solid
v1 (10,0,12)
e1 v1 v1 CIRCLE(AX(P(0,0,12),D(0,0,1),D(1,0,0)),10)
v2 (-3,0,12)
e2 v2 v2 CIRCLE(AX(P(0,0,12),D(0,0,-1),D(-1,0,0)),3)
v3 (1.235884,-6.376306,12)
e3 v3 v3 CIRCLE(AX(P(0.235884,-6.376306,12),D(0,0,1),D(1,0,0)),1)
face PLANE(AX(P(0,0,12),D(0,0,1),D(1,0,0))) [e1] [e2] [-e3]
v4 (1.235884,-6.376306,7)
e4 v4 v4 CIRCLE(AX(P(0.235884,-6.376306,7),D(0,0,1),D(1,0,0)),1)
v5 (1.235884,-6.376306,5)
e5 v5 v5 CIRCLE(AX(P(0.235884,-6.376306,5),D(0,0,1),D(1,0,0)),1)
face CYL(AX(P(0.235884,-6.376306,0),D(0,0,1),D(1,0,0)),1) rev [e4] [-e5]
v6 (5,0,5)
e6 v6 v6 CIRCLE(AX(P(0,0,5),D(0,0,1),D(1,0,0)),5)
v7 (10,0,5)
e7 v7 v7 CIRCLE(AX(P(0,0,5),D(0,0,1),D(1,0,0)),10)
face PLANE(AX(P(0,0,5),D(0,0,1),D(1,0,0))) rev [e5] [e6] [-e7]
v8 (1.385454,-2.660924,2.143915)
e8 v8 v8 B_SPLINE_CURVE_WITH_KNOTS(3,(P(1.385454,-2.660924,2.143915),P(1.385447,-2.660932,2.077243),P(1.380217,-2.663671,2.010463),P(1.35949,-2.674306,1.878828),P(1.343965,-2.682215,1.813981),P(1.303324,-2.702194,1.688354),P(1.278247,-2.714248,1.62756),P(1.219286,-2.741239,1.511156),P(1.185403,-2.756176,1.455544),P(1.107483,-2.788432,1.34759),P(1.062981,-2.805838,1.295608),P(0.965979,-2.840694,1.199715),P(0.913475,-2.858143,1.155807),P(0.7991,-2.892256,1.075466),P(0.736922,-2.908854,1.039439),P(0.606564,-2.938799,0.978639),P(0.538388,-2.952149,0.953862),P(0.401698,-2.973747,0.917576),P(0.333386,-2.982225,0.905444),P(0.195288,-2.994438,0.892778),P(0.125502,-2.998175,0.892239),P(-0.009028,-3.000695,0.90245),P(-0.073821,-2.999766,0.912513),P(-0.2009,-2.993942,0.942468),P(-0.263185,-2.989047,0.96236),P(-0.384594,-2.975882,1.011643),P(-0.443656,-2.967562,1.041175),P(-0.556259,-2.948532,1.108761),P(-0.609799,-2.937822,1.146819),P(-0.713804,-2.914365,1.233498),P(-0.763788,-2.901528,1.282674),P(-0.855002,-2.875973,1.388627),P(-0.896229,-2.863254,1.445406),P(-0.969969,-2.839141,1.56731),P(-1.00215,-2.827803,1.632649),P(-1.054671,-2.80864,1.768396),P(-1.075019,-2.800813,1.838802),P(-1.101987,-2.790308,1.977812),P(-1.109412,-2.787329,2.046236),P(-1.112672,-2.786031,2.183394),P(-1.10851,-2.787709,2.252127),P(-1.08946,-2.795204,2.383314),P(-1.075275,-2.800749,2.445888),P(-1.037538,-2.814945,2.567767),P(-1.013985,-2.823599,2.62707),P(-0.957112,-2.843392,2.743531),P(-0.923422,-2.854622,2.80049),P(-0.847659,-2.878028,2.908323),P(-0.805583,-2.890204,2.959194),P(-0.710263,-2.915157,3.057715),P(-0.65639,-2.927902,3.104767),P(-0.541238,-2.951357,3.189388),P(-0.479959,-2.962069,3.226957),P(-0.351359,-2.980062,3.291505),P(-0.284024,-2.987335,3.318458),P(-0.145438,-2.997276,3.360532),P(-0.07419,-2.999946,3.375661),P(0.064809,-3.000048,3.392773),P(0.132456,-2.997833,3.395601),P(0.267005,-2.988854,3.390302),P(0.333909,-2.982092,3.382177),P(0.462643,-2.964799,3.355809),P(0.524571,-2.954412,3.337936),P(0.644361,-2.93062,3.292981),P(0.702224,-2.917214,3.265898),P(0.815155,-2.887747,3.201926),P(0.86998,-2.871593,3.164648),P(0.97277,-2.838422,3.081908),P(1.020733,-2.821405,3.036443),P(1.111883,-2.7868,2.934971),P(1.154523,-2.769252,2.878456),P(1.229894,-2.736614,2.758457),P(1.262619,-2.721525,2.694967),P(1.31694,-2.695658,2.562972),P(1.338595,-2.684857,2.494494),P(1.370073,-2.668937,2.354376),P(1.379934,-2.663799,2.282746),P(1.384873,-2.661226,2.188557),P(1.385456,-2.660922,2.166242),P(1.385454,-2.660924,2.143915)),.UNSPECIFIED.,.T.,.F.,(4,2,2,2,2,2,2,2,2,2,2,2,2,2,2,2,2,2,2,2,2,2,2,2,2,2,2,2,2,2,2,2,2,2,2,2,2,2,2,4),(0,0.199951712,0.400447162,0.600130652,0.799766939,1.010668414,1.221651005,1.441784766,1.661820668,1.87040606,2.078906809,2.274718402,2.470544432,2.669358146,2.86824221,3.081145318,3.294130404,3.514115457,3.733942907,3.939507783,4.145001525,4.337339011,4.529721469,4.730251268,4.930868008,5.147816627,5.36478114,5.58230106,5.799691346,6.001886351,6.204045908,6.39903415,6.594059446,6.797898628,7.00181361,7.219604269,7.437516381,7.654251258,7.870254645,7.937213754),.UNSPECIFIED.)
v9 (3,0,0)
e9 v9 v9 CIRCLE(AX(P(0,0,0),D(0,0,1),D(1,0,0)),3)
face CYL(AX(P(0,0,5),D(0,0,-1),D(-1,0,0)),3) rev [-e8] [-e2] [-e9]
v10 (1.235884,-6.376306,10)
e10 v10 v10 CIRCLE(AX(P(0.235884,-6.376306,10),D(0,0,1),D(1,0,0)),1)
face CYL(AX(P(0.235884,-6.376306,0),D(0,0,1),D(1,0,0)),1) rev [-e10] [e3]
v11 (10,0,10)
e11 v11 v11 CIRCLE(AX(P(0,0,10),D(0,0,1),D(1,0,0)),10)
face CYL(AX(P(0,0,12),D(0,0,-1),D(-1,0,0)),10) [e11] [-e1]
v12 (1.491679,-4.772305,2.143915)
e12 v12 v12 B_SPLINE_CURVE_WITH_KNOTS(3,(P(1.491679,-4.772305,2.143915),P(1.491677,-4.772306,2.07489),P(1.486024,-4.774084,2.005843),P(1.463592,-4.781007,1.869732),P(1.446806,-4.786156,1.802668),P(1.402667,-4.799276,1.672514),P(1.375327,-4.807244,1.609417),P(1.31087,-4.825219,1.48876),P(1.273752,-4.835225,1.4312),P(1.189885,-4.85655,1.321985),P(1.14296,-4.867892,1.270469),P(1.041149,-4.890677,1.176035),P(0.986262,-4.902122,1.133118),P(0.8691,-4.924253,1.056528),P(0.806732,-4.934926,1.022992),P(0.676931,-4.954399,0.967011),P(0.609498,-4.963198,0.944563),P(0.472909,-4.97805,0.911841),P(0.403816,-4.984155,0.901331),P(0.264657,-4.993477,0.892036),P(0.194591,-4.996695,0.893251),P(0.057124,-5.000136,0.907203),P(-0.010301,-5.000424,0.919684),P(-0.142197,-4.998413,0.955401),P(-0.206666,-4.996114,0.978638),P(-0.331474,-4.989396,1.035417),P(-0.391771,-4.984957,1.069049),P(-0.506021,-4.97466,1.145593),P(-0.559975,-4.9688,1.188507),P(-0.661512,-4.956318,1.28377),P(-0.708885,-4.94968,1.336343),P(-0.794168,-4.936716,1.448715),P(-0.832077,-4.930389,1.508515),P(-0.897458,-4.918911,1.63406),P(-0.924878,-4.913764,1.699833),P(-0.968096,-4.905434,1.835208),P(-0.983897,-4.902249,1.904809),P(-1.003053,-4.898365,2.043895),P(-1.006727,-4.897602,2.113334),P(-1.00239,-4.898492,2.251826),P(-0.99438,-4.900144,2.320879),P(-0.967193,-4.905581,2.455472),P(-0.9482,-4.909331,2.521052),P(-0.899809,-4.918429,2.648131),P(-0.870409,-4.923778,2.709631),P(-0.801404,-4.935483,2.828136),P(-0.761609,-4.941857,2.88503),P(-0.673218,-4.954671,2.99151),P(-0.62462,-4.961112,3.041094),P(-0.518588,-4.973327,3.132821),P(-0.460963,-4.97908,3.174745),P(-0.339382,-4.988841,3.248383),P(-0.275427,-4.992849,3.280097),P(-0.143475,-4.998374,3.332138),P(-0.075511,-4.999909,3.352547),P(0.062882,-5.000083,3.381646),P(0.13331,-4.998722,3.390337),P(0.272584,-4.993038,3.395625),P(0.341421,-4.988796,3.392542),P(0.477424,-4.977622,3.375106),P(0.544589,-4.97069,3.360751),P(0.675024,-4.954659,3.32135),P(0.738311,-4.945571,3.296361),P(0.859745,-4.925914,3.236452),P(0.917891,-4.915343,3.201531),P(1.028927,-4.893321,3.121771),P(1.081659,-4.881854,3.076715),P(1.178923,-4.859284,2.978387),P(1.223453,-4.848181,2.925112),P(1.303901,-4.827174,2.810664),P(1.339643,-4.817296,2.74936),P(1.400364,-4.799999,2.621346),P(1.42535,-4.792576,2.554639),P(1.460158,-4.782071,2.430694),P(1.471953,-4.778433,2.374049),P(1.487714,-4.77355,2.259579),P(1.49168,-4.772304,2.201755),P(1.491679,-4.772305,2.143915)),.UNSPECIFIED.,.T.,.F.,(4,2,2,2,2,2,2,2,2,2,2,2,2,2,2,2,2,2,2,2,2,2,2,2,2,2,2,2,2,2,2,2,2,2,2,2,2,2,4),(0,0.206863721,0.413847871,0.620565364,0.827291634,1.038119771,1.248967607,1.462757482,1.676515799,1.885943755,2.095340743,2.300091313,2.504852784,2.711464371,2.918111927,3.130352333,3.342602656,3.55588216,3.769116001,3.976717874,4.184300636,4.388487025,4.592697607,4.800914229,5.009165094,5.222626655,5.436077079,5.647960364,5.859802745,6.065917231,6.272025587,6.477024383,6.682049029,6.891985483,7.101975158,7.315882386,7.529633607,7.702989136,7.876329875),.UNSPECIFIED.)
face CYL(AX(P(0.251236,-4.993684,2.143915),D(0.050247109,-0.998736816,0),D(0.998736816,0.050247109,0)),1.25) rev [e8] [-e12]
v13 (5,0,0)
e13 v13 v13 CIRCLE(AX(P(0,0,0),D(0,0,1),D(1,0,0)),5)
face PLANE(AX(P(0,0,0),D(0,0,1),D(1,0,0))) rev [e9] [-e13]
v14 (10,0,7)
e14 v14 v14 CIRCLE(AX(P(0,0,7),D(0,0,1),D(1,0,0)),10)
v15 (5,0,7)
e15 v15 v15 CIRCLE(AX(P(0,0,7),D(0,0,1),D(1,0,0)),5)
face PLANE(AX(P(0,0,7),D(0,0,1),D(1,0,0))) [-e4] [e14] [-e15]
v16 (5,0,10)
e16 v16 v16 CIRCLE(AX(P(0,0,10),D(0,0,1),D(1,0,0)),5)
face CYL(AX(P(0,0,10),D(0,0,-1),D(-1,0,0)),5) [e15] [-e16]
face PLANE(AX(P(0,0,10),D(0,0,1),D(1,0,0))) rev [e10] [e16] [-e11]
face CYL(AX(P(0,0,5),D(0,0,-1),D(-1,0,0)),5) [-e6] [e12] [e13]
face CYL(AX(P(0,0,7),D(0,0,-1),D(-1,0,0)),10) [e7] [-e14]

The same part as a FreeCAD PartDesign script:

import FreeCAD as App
import Part
import Sketcher

doc = App.newDocument("Part")
params = doc.addObject("Spreadsheet::Sheet", "Params")
for row, (alias, value) in enumerate([
    ("sketch1_diameter", "10 mm"),
    ("sketch1_diameter2", "6 mm"),
    ("pad1_length", "5 mm"),
    ("sketch2_diameter", "20 mm"),
    ("sketch2_diameter2", "6 mm"),
    ("pad2_length", "2 mm"),
    ("sketch3_diameter", "10 mm"),
    ("pad3_length", "3 mm"),
    ("sketch4_diameter", "20 mm"),
    ("pad4_length", "2 mm"),
    ("sketch5_diameter", "6 mm"),
    ("sketch6_diameter", "2.5 mm"),
    ("sketch7_diameter", "2 mm"),
], start=1):
    params.set(f"A{row}", alias)
    params.set(f"B{row}", "=" + value)
    params.setAlias(f"B{row}", alias)

body = doc.addObject("PartDesign::Body", "Body")

# Sketch on XY plane
sketch1 = doc.addObject("Sketcher::SketchObject", "Sketch")
body.addObject(sketch1)
sketch1.AttachmentSupport = (doc.XY_Plane, [""])
sketch1.MapMode = "FlatFace"
sketch1.addGeometry([
    Part.Circle(App.Vector(0, 0, 0), App.Vector(0, 0, 1), 5),
    Part.Circle(App.Vector(0, 0, 0), App.Vector(0, 0, 1), 3),
], False)
sketch1.addConstraint([
    Sketcher.Constraint("Coincident", 0, 3, -1, 1),
    Sketcher.Constraint("Coincident", 1, 3, -1, 1),
    Sketcher.Constraint("Diameter", 0, 10.0),
    Sketcher.Constraint("Diameter", 1, 6.0),
])
sketch1.setExpression("Constraints[2]", "Params.sketch1_diameter")
sketch1.setExpression("Constraints[3]", "Params.sketch1_diameter2")
pad1 = doc.addObject("PartDesign::Pad", "Pad")
body.addObject(pad1)
pad1.Profile = sketch1
pad1.setExpression("Length", "Params.pad1_length")

# Sketch on XY plane
sketch2 = doc.addObject("Sketcher::SketchObject", "Sketch001")
body.addObject(sketch2)
sketch2.AttachmentSupport = (doc.XY_Plane, [""])
sketch2.MapMode = "FlatFace"
sketch2.AttachmentOffset = App.Placement(App.Vector(0, 0, 5), App.Rotation())
sketch2.addGeometry([
    Part.Circle(App.Vector(0, 0, 0), App.Vector(0, 0, 1), 10),
    Part.Circle(App.Vector(0, 0, 0), App.Vector(0, 0, 1), 3),
], False)
sketch2.addConstraint([
    Sketcher.Constraint("Coincident", 0, 3, -1, 1),
    Sketcher.Constraint("Coincident", 1, 3, -1, 1),
    Sketcher.Constraint("Diameter", 0, 20.0),
    Sketcher.Constraint("Diameter", 1, 6.0),
])
sketch2.setExpression("Constraints[2]", "Params.sketch2_diameter")
sketch2.setExpression("Constraints[3]", "Params.sketch2_diameter2")
pad2 = doc.addObject("PartDesign::Pad", "Pad001")
body.addObject(pad2)
pad2.Profile = sketch2
pad2.setExpression("Length", "Params.pad2_length")

# Sketch on XY plane
sketch3 = doc.addObject("Sketcher::SketchObject", "Sketch002")
body.addObject(sketch3)
sketch3.AttachmentSupport = (doc.XY_Plane, [""])
sketch3.MapMode = "FlatFace"
sketch3.AttachmentOffset = App.Placement(App.Vector(0, 0, 7), App.Rotation())
sketch3.addGeometry(Part.Circle(App.Vector(0, 0, 0), App.Vector(0, 0, 1), 5), False)
sketch3.addConstraint([
    Sketcher.Constraint("Coincident", 0, 3, -1, 1),
    Sketcher.Constraint("Diameter", 0, 10.0),
])
sketch3.setExpression("Constraints[1]", "Params.sketch3_diameter")
pad3 = doc.addObject("PartDesign::Pad", "Pad002")
body.addObject(pad3)
pad3.Profile = sketch3
pad3.setExpression("Length", "Params.pad3_length")

# Sketch on XY plane
sketch4 = doc.addObject("Sketcher::SketchObject", "Sketch003")
body.addObject(sketch4)
sketch4.AttachmentSupport = (doc.XY_Plane, [""])
sketch4.MapMode = "FlatFace"
sketch4.AttachmentOffset = App.Placement(App.Vector(0, 0, 10), App.Rotation())
sketch4.addGeometry(Part.Circle(App.Vector(0, 0, 0), App.Vector(0, 0, 1), 10), False)
sketch4.addConstraint([
    Sketcher.Constraint("Coincident", 0, 3, -1, 1),
    Sketcher.Constraint("Diameter", 0, 20.0),
])
sketch4.setExpression("Constraints[1]", "Params.sketch4_diameter")
pad4 = doc.addObject("PartDesign::Pad", "Pad003")
body.addObject(pad4)
pad4.Profile = sketch4
pad4.setExpression("Length", "Params.pad4_length")

# Sketch on XY plane
sketch5 = doc.addObject("Sketcher::SketchObject", "Sketch004")
body.addObject(sketch5)
sketch5.AttachmentSupport = (doc.XY_Plane, [""])
sketch5.MapMode = "FlatFace"
sketch5.AttachmentOffset = App.Placement(App.Vector(0, 0, 7), App.Rotation())
sketch5.addGeometry(Part.Circle(App.Vector(0, 0, 0), App.Vector(0, 0, 1), 3), False)
sketch5.addConstraint([
    Sketcher.Constraint("Coincident", 0, 3, -1, 1),
    Sketcher.Constraint("Diameter", 0, 6.0),
])
sketch5.setExpression("Constraints[1]", "Params.sketch5_diameter")
pocket1 = doc.addObject("PartDesign::Pocket", "Pocket")
body.addObject(pocket1)
pocket1.Profile = sketch5
pocket1.Type = "ThroughAll"
pocket1.Reversed = True

# Sketch on an angled plane
sketch6 = doc.addObject("Sketcher::SketchObject", "Sketch005")
body.addObject(sketch6)
sketch6.Placement = App.Placement(App.Vector(0.251236, -4.993684, 2.143915), App.Rotation(App.Vector(-0.998736816, -0.050247109, 0), App.Vector(0, 0, -1), App.Vector(0.050247109, -0.998736816, 0), "ZXY"))
sketch6.addGeometry(Part.Circle(App.Vector(0, 0, 0), App.Vector(0, 0, 1), 1.2), False)
sketch6.addConstraint([
    Sketcher.Constraint("Coincident", 0, 3, -1, 1),
    Sketcher.Constraint("Diameter", 0, 2.5),
])
sketch6.setExpression("Constraints[1]", "Params.sketch6_diameter")
pocket2 = doc.addObject("PartDesign::Pocket", "Pocket001")
body.addObject(pocket2)
pocket2.Profile = sketch6
pocket2.Type = "UpToFirst"

# Sketch on XY plane
sketch7 = doc.addObject("Sketcher::SketchObject", "Sketch006")
body.addObject(sketch7)
sketch7.AttachmentSupport = (doc.XY_Plane, [""])
sketch7.MapMode = "FlatFace"
sketch7.AttachmentOffset = App.Placement(App.Vector(0, 0, 12), App.Rotation())
sketch7.addGeometry(Part.Circle(App.Vector(0.2, -6.4, 0), App.Vector(0, 0, 1), 1), False)
sketch7.addConstraint([
    Sketcher.Constraint("Diameter", 0, 2.0),
    Sketcher.Constraint("DistanceX", -1, 1, 0, 3, 0.235884),
    Sketcher.Constraint("DistanceY", 0, 3, -1, 1, 6.376306),
])
sketch7.setExpression("Constraints[0]", "Params.sketch7_diameter")
pocket3 = doc.addObject("PartDesign::Pocket", "Pocket002")
body.addObject(pocket3)
pocket3.Profile = sketch7
pocket3.Type = "ThroughAll"

doc.recompute()
